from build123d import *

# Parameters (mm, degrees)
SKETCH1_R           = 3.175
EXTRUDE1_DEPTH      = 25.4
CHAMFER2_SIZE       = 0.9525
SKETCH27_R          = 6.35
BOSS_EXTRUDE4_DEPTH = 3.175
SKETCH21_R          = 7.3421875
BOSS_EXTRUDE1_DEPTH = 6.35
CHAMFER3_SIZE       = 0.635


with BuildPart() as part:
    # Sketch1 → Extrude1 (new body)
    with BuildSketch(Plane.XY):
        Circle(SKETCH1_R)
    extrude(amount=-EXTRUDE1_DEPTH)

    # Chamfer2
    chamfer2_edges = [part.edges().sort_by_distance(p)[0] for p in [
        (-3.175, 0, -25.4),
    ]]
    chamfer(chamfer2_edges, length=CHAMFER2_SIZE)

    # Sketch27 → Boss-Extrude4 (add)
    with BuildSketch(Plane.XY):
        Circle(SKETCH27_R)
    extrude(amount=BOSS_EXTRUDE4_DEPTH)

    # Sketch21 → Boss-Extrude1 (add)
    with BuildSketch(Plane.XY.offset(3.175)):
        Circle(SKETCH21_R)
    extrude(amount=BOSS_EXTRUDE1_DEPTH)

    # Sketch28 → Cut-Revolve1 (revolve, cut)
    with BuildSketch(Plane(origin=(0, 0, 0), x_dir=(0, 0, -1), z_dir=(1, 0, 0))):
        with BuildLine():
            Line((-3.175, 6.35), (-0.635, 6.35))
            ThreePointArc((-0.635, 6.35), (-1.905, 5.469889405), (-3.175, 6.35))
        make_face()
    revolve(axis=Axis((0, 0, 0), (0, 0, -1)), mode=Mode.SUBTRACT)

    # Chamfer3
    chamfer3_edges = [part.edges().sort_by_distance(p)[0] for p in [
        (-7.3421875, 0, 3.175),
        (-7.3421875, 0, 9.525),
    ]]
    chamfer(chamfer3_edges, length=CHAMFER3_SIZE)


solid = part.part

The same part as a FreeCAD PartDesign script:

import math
import FreeCAD as App
import Part
import Sketcher

V = App.Vector
Q = App.Units.Quantity


def edges_at(feature, points):
    """Names of the edges that pass closest to the given points."""
    edges = feature.Shape.Edges
    near = lambda p: min(range(len(edges)), key=lambda i: edges[i].distToShape(Part.Vertex(*p))[0])
    return sorted({f"Edge{near(p) + 1}" for p in points})

doc = App.newDocument("Part")
body = doc.addObject("PartDesign::Body", "Body")

sketch1 = doc.addObject("Sketcher::SketchObject", "Sketch")
body.addObject(sketch1)
sketch1.AttachmentSupport = (doc.XY_Plane, [""])
sketch1.MapMode = "FlatFace"
sketch1.addGeometry(Part.Circle(V(0, 0, 0), V(0, 0, 1), 3.2), False)
sketch1.addConstraint([
    Sketcher.Constraint("Coincident", 0, 3, -1, 1),
    Sketcher.Constraint("Diameter", 0, Q("0.25 in")),
])
pad1 = doc.addObject("PartDesign::Pad", "Pad")
body.addObject(pad1)
pad1.Profile = sketch1
pad1.Length = Q("1 in")
pad1.Reversed = True
doc.recompute()

chamfer = doc.addObject("PartDesign::Chamfer", "Chamfer")
body.addObject(chamfer)
chamfer.Base = (pad1, edges_at(pad1, [(-3.175, 0, -25.4)]))
chamfer.Size = Q("0.0375 in")

sketch2 = doc.addObject("Sketcher::SketchObject", "Sketch001")
body.addObject(sketch2)
sketch2.AttachmentSupport = (doc.XY_Plane, [""])
sketch2.MapMode = "FlatFace"
sketch2.addGeometry(Part.Circle(V(0, 0, 0), V(0, 0, 1), 6), False)
sketch2.addConstraint([
    Sketcher.Constraint("Coincident", 0, 3, -1, 1),
    Sketcher.Constraint("Diameter", 0, Q("0.5 in")),
])
pad2 = doc.addObject("PartDesign::Pad", "Pad001")
body.addObject(pad2)
pad2.Profile = sketch2
pad2.Length = Q("0.125 in")

sketch3 = doc.addObject("Sketcher::SketchObject", "Sketch002")
body.addObject(sketch3)
sketch3.AttachmentSupport = (doc.XY_Plane, [""])
sketch3.MapMode = "FlatFace"
sketch3.AttachmentOffset = App.Placement(V(0, 0, 0.125 * 25.4), App.Rotation())
sketch3.addGeometry(Part.Circle(V(0, 0, 0), V(0, 0, 1), 7), False)
sketch3.addConstraint([
    Sketcher.Constraint("Coincident", 0, 3, -1, 1),
    Sketcher.Constraint("Diameter", 0, Q("0.578125 in")),
])
pad3 = doc.addObject("PartDesign::Pad", "Pad002")
body.addObject(pad3)
pad3.Profile = sketch3
pad3.Length = Q("0.25 in")

sketch4 = doc.addObject("Sketcher::SketchObject", "Sketch003")
body.addObject(sketch4)
sketch4.AttachmentSupport = (doc.YZ_Plane, [""])
sketch4.MapMode = "FlatFace"
sketch4.addGeometry([
    Part.LineSegment(V(6.3, 0.6, 0), V(6.3, 3.2, 0)),
    Part.ArcOfCircle(Part.Circle(V(6.8, 1.9, 0), V(0, 0, 1), 1.4), math.radians(111), math.radians(249)),
], False)
sketch4.addConstraint([
    Sketcher.Constraint("Coincident", 0, 1, 1, 2),
    Sketcher.Constraint("Coincident", 1, 1, 0, 2),
    Sketcher.Constraint("Vertical", 0),
    Sketcher.Constraint("DistanceY", 0, 1, 0, 2, Q("0.1 in")),
    Sketcher.Constraint("Radius", 1, Q("0.0534 in")),
    Sketcher.Constraint("DistanceX", -1, 1, 0, 1, Q("0.25 in")),
    Sketcher.Constraint("DistanceY", -1, 1, 1, 3, Q("0.075 in")),
])
groove = doc.addObject("PartDesign::Groove", "Groove")
body.addObject(groove)
groove.Profile = sketch4
groove.ReferenceAxis = (sketch4, ["V_Axis"])
groove.Angle = 360
doc.recompute()

chamfer2 = doc.addObject("PartDesign::Chamfer", "Chamfer001")
body.addObject(chamfer2)
chamfer2.Base = (groove, edges_at(groove, [(-7.342, 0, 3.175), (-7.342, 0, 9.525)]))
chamfer2.Size = Q("0.025 in")

doc.recompute()
